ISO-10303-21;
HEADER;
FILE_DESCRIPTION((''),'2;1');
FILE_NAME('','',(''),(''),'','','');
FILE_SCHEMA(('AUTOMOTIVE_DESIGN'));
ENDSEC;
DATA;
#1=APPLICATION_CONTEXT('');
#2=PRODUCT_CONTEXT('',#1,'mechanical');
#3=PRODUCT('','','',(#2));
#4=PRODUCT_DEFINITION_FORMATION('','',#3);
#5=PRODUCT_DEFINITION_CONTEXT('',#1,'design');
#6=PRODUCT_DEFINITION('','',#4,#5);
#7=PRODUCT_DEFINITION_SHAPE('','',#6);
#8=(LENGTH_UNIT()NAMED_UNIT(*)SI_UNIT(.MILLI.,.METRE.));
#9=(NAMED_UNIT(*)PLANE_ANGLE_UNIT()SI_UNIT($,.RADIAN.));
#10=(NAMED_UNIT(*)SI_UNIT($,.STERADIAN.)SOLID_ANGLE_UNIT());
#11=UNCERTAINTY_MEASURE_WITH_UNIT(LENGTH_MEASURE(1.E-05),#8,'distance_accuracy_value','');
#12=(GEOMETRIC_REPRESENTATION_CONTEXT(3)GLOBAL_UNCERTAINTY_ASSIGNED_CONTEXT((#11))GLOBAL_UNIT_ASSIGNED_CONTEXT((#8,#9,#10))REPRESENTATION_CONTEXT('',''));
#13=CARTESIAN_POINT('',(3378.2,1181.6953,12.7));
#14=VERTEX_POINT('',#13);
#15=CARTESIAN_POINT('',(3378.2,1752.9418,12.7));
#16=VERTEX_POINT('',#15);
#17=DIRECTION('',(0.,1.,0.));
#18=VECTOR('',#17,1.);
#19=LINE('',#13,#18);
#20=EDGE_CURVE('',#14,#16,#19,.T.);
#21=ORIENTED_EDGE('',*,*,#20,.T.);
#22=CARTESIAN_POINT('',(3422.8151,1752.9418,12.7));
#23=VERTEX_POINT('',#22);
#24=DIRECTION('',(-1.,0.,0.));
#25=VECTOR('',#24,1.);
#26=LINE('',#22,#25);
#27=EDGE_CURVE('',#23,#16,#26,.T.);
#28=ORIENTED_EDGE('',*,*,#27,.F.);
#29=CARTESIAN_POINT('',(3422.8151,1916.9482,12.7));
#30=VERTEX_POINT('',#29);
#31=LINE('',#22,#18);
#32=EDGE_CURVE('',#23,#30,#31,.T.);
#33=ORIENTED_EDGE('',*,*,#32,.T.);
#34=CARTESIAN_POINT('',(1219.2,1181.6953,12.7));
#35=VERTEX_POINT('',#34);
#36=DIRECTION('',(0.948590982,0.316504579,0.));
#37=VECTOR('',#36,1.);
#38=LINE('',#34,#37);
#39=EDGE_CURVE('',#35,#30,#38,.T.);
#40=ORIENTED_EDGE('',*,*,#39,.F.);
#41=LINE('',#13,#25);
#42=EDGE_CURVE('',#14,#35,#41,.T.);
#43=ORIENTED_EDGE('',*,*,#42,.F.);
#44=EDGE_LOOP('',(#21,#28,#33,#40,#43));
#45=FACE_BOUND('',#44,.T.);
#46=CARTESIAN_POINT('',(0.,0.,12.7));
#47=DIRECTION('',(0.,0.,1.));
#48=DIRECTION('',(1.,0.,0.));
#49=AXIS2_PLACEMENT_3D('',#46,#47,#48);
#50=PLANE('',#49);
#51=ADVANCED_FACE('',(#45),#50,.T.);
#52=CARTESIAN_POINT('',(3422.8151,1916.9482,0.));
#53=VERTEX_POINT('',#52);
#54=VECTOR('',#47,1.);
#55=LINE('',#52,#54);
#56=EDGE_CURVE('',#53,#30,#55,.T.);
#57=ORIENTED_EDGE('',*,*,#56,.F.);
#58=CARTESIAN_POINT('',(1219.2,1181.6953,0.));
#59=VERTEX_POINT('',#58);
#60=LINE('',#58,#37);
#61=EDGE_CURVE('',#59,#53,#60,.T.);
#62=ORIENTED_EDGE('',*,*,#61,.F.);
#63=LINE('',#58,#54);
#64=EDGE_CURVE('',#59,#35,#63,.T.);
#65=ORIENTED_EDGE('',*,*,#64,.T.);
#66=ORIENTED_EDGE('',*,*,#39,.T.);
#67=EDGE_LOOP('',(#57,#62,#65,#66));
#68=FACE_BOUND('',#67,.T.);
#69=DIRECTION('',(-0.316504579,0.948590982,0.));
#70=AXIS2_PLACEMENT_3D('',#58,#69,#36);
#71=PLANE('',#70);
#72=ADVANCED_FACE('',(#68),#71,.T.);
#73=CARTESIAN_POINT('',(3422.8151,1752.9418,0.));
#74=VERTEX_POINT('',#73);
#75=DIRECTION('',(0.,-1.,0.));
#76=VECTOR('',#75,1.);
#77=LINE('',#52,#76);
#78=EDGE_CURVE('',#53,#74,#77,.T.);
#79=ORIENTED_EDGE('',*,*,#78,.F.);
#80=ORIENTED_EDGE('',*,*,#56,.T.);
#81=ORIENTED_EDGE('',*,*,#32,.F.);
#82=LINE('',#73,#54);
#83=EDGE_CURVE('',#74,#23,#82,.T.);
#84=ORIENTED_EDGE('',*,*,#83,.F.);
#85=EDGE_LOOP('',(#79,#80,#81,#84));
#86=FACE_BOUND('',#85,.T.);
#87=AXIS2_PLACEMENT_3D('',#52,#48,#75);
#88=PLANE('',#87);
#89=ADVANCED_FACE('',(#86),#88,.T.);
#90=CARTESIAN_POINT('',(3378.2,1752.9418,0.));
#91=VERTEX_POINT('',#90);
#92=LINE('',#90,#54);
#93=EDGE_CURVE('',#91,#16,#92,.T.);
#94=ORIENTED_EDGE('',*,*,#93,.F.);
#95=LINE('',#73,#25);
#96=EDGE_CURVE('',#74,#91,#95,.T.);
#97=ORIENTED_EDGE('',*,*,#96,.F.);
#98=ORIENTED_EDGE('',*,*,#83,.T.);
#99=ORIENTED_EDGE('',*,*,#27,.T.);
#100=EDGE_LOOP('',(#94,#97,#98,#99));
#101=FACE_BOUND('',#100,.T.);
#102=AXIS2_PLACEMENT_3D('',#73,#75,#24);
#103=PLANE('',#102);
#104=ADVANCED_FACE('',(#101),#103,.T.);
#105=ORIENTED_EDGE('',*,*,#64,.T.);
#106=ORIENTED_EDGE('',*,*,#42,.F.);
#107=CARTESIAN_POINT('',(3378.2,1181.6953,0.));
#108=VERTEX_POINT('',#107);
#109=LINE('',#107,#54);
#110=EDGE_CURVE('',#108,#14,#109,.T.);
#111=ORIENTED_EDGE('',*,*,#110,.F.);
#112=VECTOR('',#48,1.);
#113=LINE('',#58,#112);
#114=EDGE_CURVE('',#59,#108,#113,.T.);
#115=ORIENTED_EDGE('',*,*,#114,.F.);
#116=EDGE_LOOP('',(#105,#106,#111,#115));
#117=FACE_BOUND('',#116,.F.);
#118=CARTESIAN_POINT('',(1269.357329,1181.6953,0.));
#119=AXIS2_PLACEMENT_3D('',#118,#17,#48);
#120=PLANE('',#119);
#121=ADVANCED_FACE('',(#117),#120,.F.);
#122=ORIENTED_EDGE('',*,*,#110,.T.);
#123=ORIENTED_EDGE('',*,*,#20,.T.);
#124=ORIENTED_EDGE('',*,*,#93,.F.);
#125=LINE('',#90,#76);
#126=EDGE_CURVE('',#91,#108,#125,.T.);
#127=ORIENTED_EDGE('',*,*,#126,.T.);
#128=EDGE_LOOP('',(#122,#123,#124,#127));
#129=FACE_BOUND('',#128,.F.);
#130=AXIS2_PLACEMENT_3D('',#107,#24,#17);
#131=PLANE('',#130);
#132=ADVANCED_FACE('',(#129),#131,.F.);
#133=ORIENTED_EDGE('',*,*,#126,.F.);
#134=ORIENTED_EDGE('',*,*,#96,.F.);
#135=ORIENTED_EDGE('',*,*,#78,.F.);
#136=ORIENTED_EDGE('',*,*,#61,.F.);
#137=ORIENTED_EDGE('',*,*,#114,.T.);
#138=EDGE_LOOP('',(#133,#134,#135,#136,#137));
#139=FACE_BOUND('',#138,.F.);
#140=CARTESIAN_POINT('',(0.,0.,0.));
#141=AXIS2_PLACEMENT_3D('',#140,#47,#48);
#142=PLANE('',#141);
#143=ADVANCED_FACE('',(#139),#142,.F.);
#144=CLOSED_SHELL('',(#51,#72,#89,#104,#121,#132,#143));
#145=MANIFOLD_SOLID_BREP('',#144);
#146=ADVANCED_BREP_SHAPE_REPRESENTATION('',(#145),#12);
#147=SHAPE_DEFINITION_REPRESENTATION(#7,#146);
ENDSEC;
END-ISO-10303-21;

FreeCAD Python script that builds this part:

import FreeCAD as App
import Part
import Sketcher
from FreeCAD import Vector
Q = App.Units.Quantity


def add_polygon(sketch, points):
    """Adds a closed chain of lines whose ends are joined by coincident constraints."""
    first, n = sketch.GeometryCount, len(points)
    for a, b in zip(points, points[1:] + points[:1]):
        sketch.addGeometry(Part.LineSegment(App.Vector(*a, 0), App.Vector(*b, 0)), False)
    for i in range(n):
        sketch.addConstraint(Sketcher.Constraint("Coincident", first + i, 2, first + (i + 1) % n, 1))

doc = App.newDocument("Part")
body = doc.addObject("PartDesign::Body", "Body")

sketch1 = body.newObject("Sketcher::SketchObject", "Sketch")
sketch1.AttachmentSupport = (doc.getObject("XY_Plane"), [""])
sketch1.MapMode = "FlatFace"
add_polygon(sketch1, [(3378, 1182), (3378, 1753), (3423, 1753), (3423, 1917), (1219, 1182)])
sketch1.addConstraint(Sketcher.Constraint("Vertical", 0))
sketch1.addConstraint(Sketcher.Constraint("Horizontal", 1))
sketch1.addConstraint(Sketcher.Constraint("Vertical", 2))
sketch1.addConstraint(Sketcher.Constraint("Horizontal", 4))
sketch1.addConstraint(Sketcher.Constraint("DistanceX", 4, 1, 4, 2, Q("85 in")))
sketch1.addConstraint(Sketcher.Constraint("DistanceX", -1, 1, 3, 2, Q("48 in")))
sketch1.addConstraint(Sketcher.Constraint("DistanceX", 1, 1, 1, 2, Q("1.7565 in")))
sketch1.addConstraint(Sketcher.Constraint("DistanceY", 0, 1, 0, 2, Q("571.2465 mm")))
sketch1.addConstraint(Sketcher.Constraint("DistanceY", 2, 1, 2, 2, Q("164.0064 mm")))
sketch1.addConstraint(Sketcher.Constraint("DistanceY", -1, 1, 2, 2, Q("75.4704 in")))
pad1 = body.newObject("PartDesign::Pad", "Pad")
pad1.Profile = sketch1
pad1.Length = Q("0.5 in")

doc.recompute()
